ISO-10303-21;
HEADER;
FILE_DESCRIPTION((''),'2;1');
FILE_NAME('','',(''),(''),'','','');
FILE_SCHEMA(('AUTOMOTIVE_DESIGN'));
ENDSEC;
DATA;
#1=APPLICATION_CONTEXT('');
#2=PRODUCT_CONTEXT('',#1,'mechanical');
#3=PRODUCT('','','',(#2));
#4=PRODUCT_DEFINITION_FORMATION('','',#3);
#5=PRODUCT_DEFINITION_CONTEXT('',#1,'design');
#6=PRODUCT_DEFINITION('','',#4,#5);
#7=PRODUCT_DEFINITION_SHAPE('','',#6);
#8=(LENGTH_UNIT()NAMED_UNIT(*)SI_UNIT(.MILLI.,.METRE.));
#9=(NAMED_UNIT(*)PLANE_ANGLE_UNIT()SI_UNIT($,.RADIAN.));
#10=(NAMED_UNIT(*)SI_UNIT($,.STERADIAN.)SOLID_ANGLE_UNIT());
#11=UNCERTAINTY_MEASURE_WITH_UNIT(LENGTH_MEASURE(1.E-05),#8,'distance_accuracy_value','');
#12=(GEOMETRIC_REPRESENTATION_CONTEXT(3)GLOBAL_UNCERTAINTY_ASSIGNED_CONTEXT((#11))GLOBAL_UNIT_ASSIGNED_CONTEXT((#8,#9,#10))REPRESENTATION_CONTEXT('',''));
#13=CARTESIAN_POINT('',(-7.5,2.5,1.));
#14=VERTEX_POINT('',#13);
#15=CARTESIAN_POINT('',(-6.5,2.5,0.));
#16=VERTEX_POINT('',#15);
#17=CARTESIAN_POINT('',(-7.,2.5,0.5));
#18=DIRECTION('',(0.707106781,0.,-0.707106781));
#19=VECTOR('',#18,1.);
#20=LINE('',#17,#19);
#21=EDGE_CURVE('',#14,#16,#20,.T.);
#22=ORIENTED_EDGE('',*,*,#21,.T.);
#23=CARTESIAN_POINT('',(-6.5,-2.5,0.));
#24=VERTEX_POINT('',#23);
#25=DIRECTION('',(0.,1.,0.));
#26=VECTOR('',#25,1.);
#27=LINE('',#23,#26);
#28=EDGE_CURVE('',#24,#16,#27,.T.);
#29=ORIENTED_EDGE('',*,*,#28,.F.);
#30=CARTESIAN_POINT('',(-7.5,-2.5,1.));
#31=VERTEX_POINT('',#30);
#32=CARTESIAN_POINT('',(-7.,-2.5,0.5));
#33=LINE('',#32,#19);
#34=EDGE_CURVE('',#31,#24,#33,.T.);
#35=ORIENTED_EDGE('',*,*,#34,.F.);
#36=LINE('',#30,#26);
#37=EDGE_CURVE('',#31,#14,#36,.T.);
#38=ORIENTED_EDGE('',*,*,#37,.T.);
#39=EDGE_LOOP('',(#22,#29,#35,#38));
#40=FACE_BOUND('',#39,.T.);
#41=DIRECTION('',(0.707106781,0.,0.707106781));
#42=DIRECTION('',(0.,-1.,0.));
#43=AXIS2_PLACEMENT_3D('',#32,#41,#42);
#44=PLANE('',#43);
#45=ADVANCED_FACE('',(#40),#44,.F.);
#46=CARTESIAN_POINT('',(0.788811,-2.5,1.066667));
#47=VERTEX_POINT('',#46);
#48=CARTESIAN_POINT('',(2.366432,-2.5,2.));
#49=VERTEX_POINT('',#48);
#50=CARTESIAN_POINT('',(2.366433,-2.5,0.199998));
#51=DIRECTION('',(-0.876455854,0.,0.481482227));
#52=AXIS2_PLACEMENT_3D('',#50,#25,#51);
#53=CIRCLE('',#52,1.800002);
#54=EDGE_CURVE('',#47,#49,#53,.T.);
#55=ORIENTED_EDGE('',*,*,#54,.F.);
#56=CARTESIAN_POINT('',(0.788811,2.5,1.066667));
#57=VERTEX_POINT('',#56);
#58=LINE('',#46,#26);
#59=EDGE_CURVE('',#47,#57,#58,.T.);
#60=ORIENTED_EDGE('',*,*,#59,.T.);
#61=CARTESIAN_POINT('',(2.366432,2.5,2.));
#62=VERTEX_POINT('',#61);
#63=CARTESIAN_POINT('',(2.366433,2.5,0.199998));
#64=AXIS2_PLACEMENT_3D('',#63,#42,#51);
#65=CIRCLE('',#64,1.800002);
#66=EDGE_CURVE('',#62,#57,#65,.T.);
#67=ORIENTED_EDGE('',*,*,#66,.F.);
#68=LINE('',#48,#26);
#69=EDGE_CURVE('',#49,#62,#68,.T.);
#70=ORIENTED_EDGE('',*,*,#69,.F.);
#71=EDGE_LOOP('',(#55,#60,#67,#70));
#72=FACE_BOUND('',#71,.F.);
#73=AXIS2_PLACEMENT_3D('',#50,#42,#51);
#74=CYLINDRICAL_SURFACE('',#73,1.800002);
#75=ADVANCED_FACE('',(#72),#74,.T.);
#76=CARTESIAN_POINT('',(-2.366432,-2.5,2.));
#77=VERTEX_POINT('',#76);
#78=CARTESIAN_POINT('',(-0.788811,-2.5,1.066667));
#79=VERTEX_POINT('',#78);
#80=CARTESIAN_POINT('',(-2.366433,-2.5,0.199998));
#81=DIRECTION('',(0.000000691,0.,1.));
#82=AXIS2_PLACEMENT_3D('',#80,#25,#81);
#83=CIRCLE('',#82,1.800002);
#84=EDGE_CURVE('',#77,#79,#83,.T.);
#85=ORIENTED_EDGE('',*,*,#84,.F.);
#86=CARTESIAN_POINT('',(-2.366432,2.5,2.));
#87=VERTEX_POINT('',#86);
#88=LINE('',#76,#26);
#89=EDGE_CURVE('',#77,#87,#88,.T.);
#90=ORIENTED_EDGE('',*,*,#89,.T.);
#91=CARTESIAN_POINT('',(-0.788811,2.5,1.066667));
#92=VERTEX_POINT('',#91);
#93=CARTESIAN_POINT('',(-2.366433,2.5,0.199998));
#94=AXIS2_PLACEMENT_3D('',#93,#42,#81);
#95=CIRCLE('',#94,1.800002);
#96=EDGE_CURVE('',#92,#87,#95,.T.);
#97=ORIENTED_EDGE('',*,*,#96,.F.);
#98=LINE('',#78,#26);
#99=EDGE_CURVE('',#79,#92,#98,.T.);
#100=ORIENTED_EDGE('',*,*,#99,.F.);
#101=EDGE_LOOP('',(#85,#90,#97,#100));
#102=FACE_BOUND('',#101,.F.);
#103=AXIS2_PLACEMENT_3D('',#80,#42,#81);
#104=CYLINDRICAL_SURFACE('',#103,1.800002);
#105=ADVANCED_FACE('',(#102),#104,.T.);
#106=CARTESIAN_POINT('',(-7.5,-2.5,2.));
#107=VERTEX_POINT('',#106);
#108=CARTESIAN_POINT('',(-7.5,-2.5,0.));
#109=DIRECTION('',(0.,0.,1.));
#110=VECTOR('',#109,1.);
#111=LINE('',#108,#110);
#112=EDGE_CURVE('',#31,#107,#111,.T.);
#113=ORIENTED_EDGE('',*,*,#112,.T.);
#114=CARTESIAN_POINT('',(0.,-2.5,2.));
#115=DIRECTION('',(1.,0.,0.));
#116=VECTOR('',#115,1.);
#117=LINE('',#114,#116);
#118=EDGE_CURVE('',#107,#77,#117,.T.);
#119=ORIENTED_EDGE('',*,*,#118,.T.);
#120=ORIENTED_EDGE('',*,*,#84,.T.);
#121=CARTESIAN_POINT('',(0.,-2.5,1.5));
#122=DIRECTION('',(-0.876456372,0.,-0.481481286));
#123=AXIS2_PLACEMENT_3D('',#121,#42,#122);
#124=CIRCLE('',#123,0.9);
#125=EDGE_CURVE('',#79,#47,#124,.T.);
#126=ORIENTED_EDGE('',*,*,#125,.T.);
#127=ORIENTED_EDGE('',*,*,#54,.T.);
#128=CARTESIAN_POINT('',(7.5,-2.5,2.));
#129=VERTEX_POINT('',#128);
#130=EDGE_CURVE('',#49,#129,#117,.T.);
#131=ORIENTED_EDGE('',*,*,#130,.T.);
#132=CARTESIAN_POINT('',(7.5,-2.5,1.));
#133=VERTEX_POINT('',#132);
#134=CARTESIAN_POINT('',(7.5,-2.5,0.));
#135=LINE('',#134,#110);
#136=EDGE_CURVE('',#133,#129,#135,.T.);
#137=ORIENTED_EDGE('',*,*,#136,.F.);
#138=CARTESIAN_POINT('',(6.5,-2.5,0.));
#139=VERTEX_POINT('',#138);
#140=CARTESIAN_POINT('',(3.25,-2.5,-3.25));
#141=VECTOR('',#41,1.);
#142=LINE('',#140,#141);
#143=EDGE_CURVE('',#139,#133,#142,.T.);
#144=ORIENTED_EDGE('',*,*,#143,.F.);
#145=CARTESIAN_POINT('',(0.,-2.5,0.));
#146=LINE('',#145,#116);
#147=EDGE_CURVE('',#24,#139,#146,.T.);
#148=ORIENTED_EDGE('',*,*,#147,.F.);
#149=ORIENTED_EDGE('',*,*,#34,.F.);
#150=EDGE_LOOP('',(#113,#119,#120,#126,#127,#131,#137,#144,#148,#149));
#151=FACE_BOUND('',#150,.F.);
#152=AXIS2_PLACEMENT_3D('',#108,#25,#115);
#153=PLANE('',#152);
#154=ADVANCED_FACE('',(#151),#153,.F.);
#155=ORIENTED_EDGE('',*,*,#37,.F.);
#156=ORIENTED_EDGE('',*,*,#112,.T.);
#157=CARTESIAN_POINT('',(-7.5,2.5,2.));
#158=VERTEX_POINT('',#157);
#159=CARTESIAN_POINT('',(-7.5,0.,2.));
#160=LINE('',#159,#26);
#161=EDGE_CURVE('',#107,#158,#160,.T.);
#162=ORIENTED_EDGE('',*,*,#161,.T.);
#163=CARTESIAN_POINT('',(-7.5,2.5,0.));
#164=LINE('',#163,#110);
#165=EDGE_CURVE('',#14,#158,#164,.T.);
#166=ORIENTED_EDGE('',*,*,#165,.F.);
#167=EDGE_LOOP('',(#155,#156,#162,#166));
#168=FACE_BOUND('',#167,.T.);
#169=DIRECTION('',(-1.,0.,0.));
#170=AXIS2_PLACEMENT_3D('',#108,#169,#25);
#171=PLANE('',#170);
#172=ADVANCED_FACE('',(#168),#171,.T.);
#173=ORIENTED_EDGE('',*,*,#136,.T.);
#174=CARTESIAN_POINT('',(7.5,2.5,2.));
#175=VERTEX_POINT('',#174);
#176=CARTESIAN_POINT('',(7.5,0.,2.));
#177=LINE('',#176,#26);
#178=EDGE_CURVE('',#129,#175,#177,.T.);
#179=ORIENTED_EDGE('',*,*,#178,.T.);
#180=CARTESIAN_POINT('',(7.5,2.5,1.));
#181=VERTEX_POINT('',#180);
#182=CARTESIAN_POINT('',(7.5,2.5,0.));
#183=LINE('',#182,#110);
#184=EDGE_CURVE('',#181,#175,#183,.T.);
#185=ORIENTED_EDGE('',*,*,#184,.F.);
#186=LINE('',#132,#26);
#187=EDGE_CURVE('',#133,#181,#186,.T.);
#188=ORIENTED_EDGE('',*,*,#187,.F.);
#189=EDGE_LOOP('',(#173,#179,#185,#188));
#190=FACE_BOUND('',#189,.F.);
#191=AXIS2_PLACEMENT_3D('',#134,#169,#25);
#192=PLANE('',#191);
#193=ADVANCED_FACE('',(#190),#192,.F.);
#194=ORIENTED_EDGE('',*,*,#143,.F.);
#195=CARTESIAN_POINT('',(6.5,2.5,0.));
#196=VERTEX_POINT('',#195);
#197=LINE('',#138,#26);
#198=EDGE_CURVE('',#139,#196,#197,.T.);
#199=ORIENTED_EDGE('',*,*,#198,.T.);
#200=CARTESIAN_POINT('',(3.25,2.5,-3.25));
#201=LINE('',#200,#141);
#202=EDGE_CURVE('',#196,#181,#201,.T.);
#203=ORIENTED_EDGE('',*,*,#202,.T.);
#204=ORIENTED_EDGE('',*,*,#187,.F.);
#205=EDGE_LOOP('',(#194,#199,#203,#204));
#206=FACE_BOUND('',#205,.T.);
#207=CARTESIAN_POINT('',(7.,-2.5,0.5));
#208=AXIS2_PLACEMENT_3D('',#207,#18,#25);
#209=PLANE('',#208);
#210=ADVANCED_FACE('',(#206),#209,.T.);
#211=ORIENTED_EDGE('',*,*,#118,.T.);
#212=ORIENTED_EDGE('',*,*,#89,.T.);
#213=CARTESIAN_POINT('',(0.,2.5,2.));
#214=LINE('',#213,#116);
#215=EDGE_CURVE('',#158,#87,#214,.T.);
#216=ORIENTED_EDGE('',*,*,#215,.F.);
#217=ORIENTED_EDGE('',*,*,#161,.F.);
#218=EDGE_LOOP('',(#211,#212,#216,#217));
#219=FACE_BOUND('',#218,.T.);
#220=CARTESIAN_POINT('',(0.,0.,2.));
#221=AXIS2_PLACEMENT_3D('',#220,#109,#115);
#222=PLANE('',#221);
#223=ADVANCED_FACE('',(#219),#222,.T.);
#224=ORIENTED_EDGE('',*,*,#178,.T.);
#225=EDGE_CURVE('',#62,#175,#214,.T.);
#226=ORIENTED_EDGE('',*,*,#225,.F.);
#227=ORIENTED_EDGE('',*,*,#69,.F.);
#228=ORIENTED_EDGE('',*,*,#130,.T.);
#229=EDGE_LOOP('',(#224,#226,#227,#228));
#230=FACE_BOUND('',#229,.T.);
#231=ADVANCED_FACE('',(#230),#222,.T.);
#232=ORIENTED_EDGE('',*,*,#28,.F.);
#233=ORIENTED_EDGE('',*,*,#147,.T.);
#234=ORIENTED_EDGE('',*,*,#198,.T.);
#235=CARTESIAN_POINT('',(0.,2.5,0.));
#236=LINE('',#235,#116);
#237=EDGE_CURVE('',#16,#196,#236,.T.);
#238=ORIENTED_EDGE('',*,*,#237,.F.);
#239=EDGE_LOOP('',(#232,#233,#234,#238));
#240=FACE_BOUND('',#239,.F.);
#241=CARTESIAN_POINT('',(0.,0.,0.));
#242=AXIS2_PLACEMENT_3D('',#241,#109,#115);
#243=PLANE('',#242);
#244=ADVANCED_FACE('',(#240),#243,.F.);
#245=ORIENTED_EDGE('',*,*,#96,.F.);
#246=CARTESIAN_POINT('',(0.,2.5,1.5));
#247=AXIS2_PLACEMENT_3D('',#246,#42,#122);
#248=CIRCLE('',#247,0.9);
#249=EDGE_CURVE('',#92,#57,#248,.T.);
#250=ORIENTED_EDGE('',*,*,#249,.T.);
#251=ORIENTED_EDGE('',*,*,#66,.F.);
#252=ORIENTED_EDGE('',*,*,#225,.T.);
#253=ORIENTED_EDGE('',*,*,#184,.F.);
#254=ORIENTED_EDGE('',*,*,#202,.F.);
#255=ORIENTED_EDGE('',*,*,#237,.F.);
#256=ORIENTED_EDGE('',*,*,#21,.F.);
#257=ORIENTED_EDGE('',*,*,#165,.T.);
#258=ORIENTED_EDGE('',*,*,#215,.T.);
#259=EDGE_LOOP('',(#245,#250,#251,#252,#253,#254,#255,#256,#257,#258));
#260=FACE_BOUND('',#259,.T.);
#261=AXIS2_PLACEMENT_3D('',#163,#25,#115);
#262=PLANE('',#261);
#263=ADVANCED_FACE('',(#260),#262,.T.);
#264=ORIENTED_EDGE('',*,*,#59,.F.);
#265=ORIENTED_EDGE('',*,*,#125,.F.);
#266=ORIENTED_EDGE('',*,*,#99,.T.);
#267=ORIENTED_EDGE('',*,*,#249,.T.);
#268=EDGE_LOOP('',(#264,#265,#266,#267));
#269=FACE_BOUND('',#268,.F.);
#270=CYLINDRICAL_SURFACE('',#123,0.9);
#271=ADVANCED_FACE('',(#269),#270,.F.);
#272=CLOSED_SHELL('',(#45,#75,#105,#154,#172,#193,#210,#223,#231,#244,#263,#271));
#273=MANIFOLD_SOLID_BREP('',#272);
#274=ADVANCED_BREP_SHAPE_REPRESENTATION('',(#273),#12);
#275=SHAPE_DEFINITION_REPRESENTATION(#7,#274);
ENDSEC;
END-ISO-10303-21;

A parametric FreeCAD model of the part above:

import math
import FreeCAD as App
import Part
import Sketcher

V = App.Vector


def edges_at(feature, points):
    """Names of the edges that pass closest to the given points."""
    edges = feature.Shape.Edges
    near = lambda p: min(range(len(edges)), key=lambda i: edges[i].distToShape(Part.Vertex(*p))[0])
    return sorted({f"Edge{near(p) + 1}" for p in points})


def add_polygon(sketch, points):
    """Adds a closed chain of lines whose ends are joined by coincident constraints."""
    first, n = sketch.GeometryCount, len(points)
    for a, b in zip(points, points[1:] + points[:1]):
        sketch.addGeometry(Part.LineSegment(App.Vector(*a, 0), App.Vector(*b, 0)), False)
    for i in range(n):
        sketch.addConstraint(Sketcher.Constraint("Coincident", first + i, 2, first + (i + 1) % n, 1))

doc = App.newDocument("Part")
body = doc.addObject("PartDesign::Body", "Body")

# Sketch on XY plane
sketch1 = body.newObject("Sketcher::SketchObject", "Sketch")
sketch1.AttachmentSupport = (doc.getObject("XY_Plane"), [""])
sketch1.MapMode = "FlatFace"
add_polygon(sketch1, [(-7.5, 2.5), (-7.5, -2.5), (7.5, -2.5), (7.5, 2.5)])  # lines 0-3
sketch1.addConstraint(Sketcher.Constraint("Vertical", 0))
sketch1.addConstraint(Sketcher.Constraint("Horizontal", 1))
sketch1.addConstraint(Sketcher.Constraint("Vertical", 2))
sketch1.addConstraint(Sketcher.Constraint("Horizontal", 3))
sketch1.addConstraint(Sketcher.Constraint("Symmetric", 0, 2, 2, 2, -1, 1))
sketch1.addConstraint(Sketcher.Constraint("DistanceX", 1, 1, 1, 2, 15.0))
sketch1.addConstraint(Sketcher.Constraint("DistanceY", 0, 2, 0, 1, 5.0))
pad1 = body.newObject("PartDesign::Pad", "Pad")
pad1.Profile = sketch1
pad1.Length = 2

# Sketch on XZ plane
sketch2 = body.newObject("Sketcher::SketchObject", "Sketch001")
sketch2.AttachmentSupport = (doc.getObject("XZ_Plane"), [""])
sketch2.MapMode = "FlatFace"
sketch2.AttachmentOffset = App.Placement(V(0, 0, 2.5), App.Rotation())
sketch2.addGeometry(Part.ArcOfCircle(Part.Circle(V(-2.366433, 0.199998, 0), V(0, 0, 1), 1.800002), math.radians(28.782253), math.radians(89.99996)), False)
sketch2.addGeometry(Part.ArcOfCircle(Part.Circle(V(0, 1.5, 0), V(0, 0, 1), 0.9), math.radians(-151.217808), math.radians(-28.782192)), False)
sketch2.addGeometry(Part.ArcOfCircle(Part.Circle(V(2.366433, 0.199998, 0), V(0, 0, 1), 1.800002), math.radians(90.00004), math.radians(151.217747)), False)
sketch2.addGeometry(Part.LineSegment(V(2.366432, 2, 0), V(2.366432, 2.538756, 0)), False)
sketch2.addGeometry(Part.LineSegment(V(2.366432, 2.538756, 0), V(-2.366432, 2.538756, 0)), False)
sketch2.addGeometry(Part.LineSegment(V(-2.366432, 2.538756, 0), V(-2.366432, 2, 0)), False)
sketch2.addConstraint(Sketcher.Constraint("Tangent", 0, 1, 1, 1))
sketch2.addConstraint(Sketcher.Constraint("Tangent", 1, 2, 2, 2))
sketch2.addConstraint(Sketcher.Constraint("Coincident", 2, 1, 3, 1))
sketch2.addConstraint(Sketcher.Constraint("Coincident", 3, 2, 4, 1))
sketch2.addConstraint(Sketcher.Constraint("Coincident", 4, 2, 5, 1))
sketch2.addConstraint(Sketcher.Constraint("Coincident", 5, 2, 0, 2))
sketch2.addConstraint(Sketcher.Constraint("Vertical", 3))
sketch2.addConstraint(Sketcher.Constraint("Horizontal", 4))
sketch2.addConstraint(Sketcher.Constraint("Vertical", 5))
sketch2.addConstraint(Sketcher.Constraint("Equal", 0, 2))
sketch2.addConstraint(Sketcher.Constraint("Symmetric", 0, 3, 2, 3, -2))
sketch2.addConstraint(Sketcher.Constraint("Vertical", 0, 3, 4, 2))
sketch2.addConstraint(Sketcher.Constraint("Radius", 0, 1.800002))
sketch2.addConstraint(Sketcher.Constraint("Radius", 1, 0.9))
sketch2.addConstraint(Sketcher.Constraint("DistanceY", -1, 1, 2, 1, 2.0))
sketch2.addConstraint(Sketcher.Constraint("DistanceY", -1, 1, 1, 3, 1.5))
sketch2.addConstraint(Sketcher.Constraint("DistanceX", 4, 2, 4, 1, 4.732864))
sketch2.addConstraint(Sketcher.Constraint("DistanceY", 3, 1, 3, 2, 0.538756))
pocket1 = body.newObject("PartDesign::Pocket", "Pocket")
pocket1.Profile = sketch2
pocket1.Type = "ThroughAll"
doc.recompute()

chamfer = body.newObject("PartDesign::Chamfer", "Chamfer")
chamfer.Base = (pocket1, edges_at(pocket1, [(-7.5, 0, 0), (7.5, 0, 0)]))
chamfer.Size = 1

doc.recompute()
